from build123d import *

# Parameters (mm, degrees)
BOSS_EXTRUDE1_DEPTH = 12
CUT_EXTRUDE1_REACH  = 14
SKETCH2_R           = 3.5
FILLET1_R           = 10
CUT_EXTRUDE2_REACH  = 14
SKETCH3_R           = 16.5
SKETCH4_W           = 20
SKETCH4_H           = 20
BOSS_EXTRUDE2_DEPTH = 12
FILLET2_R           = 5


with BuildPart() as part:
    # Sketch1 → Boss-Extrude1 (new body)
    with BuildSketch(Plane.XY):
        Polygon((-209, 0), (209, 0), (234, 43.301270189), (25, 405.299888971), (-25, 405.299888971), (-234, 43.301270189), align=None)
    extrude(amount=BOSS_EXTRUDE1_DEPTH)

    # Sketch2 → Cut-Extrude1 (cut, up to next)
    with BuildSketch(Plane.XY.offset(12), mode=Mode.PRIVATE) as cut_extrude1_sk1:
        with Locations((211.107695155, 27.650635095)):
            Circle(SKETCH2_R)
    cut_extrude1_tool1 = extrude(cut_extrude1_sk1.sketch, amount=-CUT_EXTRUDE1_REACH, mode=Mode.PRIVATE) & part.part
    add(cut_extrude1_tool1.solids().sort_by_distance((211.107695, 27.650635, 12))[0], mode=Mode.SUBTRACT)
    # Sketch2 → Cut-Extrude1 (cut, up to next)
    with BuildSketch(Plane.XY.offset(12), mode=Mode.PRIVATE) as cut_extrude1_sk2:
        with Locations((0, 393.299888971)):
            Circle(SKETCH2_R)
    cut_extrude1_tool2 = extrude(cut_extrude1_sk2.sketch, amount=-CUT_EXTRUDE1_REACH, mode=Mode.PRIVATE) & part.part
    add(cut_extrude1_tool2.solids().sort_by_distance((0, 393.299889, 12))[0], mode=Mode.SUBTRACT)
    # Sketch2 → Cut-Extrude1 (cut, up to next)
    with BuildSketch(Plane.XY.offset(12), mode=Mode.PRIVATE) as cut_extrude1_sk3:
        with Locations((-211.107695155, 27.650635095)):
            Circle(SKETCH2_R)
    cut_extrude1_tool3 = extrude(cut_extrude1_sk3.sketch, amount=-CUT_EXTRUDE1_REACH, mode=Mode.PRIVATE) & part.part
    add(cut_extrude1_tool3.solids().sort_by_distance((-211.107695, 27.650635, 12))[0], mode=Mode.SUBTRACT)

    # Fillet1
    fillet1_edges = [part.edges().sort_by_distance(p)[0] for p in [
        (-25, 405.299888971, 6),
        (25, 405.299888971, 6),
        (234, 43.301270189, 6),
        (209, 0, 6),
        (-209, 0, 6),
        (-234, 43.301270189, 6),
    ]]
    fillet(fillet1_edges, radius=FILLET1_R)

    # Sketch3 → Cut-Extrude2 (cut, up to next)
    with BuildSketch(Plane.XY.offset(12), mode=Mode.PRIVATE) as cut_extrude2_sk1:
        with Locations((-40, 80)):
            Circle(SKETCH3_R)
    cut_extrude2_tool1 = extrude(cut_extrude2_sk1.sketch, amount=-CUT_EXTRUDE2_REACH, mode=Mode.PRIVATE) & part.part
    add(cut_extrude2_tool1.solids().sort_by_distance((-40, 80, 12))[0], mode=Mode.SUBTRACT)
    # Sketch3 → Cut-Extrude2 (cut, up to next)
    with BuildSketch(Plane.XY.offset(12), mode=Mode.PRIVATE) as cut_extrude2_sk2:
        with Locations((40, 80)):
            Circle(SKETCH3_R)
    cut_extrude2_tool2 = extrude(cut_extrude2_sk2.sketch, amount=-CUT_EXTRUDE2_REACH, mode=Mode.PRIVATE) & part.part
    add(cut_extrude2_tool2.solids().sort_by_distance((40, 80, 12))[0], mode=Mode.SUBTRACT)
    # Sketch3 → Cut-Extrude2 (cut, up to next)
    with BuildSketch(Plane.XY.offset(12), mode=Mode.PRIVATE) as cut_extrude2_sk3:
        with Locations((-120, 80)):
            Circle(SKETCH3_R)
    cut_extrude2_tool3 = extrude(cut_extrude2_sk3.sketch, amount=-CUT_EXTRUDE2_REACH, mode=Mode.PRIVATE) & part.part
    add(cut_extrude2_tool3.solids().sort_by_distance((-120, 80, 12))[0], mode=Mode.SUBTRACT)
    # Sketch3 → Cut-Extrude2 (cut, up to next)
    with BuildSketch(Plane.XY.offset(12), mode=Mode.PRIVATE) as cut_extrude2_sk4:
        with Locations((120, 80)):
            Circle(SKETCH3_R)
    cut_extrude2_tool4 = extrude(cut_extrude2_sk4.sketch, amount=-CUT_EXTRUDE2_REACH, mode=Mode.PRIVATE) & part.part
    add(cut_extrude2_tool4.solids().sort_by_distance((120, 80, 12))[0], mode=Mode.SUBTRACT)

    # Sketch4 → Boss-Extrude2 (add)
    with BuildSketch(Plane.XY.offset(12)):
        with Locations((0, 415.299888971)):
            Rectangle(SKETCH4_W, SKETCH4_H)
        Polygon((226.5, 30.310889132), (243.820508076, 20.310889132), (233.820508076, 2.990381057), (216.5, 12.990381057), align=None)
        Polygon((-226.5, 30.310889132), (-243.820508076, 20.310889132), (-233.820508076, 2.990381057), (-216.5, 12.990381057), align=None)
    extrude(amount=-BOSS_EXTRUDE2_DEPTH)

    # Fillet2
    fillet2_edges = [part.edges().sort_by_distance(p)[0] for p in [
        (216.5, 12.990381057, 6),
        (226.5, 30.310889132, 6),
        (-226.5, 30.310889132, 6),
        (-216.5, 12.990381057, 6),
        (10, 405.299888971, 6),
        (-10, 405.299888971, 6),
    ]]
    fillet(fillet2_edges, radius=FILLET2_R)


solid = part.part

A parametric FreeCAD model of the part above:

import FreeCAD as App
import Part
import Sketcher
from FreeCAD import Vector
Q = App.Units.Quantity


def edges_at(feature, points):
    """Names of the edges that pass closest to the given points."""
    edges = feature.Shape.Edges
    near = lambda p: min(range(len(edges)), key=lambda i: edges[i].distToShape(Part.Vertex(*p))[0])
    return sorted({f"Edge{near(p) + 1}" for p in points})

doc = App.newDocument("Part")
body = doc.addObject("PartDesign::Body", "Body")

sketch1 = body.newObject("Sketcher::SketchObject", "Sketch")
sketch1.AttachmentSupport = (doc.getObject("XY_Plane"), [""])
sketch1.MapMode = "FlatFace"
sketch1.addGeometry([
    Part.LineSegment(Vector(-209, 0, 0), Vector(209, 0, 0)),
    Part.LineSegment(Vector(209, 0, 0), Vector(234, 43, 0)),
    Part.LineSegment(Vector(234, 43, 0), Vector(25, 405, 0)),
    Part.LineSegment(Vector(25, 405, 0), Vector(-25, 405, 0)),
    Part.LineSegment(Vector(-25, 405, 0), Vector(-234, 43, 0)),
    Part.LineSegment(Vector(-234, 43, 0), Vector(-209, 0, 0)),
], False)
sketch1.addConstraint([
    Sketcher.Constraint("Coincident", 0, 2, 1, 1),
    Sketcher.Constraint("Coincident", 1, 2, 2, 1),
    Sketcher.Constraint("Coincident", 2, 2, 3, 1),
    Sketcher.Constraint("Coincident", 3, 2, 4, 1),
    Sketcher.Constraint("Coincident", 4, 2, 5, 1),
    Sketcher.Constraint("Coincident", 5, 2, 0, 1),
    Sketcher.Constraint("Horizontal", 0),
    Sketcher.Constraint("Horizontal", 3),
    Sketcher.Constraint("Symmetric", 0, 2, 5, 2, -1, 1),
    Sketcher.Constraint("Symmetric", 1, 2, 4, 2, -2),
    Sketcher.Constraint("Parallel", 1, 4),
    Sketcher.Constraint("Parallel", 2, 5),
    Sketcher.Constraint("DistanceX", 0, 1, 0, 2, Q("418 mm")),
    Sketcher.Constraint("DistanceX", 3, 2, 3, 1, Q("50 mm")),
    Sketcher.Constraint("Angle", 1, Q("60 deg")),
    Sketcher.Constraint("Distance", 1, Q("50 mm")),
])
pad1 = body.newObject("PartDesign::Pad", "Pad")
pad1.Profile = sketch1
pad1.Length = 12

sketch2 = body.newObject("Sketcher::SketchObject", "Sketch001")
sketch2.AttachmentSupport = (doc.getObject("XY_Plane"), [""])
sketch2.MapMode = "FlatFace"
sketch2.AttachmentOffset = App.Placement(Vector(0, 0, 12), App.Rotation())
sketch2.addGeometry(Part.Circle(Vector(211.1, 27.7, 0), Vector(0, 0, 1), 3.5), False)
sketch2.addConstraint([
    Sketcher.Constraint("Diameter", 0, Q("7 mm")),
    Sketcher.Constraint("DistanceX", -1, 1, 0, 3, Q("211.107695 mm")),
    Sketcher.Constraint("DistanceY", -1, 1, 0, 3, Q("27.650635 mm")),
])
pocket1 = body.newObject("PartDesign::Pocket", "Pocket")
pocket1.Profile = sketch2
pocket1.Type = "UpToFirst"

sketch3 = body.newObject("Sketcher::SketchObject", "Sketch002")
sketch3.AttachmentSupport = (doc.getObject("XY_Plane"), [""])
sketch3.MapMode = "FlatFace"
sketch3.AttachmentOffset = App.Placement(Vector(0, 0, 12), App.Rotation())
sketch3.addGeometry(Part.Circle(Vector(0, 393.299889, 0), Vector(0, 0, 1), 3.5), False)
sketch3.addConstraint([
    Sketcher.Constraint("PointOnObject", 0, 3, -2),
    Sketcher.Constraint("Diameter", 0, Q("7 mm")),
    Sketcher.Constraint("DistanceY", -1, 1, 0, 3, Q("393.299889 mm")),
])
pocket2 = body.newObject("PartDesign::Pocket", "Pocket001")
pocket2.Profile = sketch3
pocket2.Type = "UpToFirst"

sketch4 = body.newObject("Sketcher::SketchObject", "Sketch003")
sketch4.AttachmentSupport = (doc.getObject("XY_Plane"), [""])
sketch4.MapMode = "FlatFace"
sketch4.AttachmentOffset = App.Placement(Vector(0, 0, 12), App.Rotation())
sketch4.addGeometry(Part.Circle(Vector(-211.1, 27.7, 0), Vector(0, 0, 1), 3.5), False)
sketch4.addConstraint([
    Sketcher.Constraint("Diameter", 0, Q("7 mm")),
    Sketcher.Constraint("DistanceX", 0, 3, -1, 1, Q("211.107695 mm")),
    Sketcher.Constraint("DistanceY", -1, 1, 0, 3, Q("27.650635 mm")),
])
pocket3 = body.newObject("PartDesign::Pocket", "Pocket002")
pocket3.Profile = sketch4
pocket3.Type = "UpToFirst"
doc.recompute()

fillet = body.newObject("PartDesign::Fillet", "Fillet")
fillet.Base = (pocket3, edges_at(pocket3, [
    (-25, 405.3, 6),
    (25, 405.3, 6),
    (234, 43.301, 6),
    (209, 0, 6),
    (-209, 0, 6),
    (-234, 43.301, 6),
]))
fillet.Radius = 10

sketch5 = body.newObject("Sketcher::SketchObject", "Sketch004")
sketch5.AttachmentSupport = (doc.getObject("XY_Plane"), [""])
sketch5.MapMode = "FlatFace"
sketch5.AttachmentOffset = App.Placement(Vector(0, 0, 12), App.Rotation())
sketch5.addGeometry(Part.Circle(Vector(-40, 80, 0), Vector(0, 0, 1), 16), False)
sketch5.addConstraint([
    Sketcher.Constraint("Diameter", 0, Q("33 mm")),
    Sketcher.Constraint("DistanceX", 0, 3, -1, 1, Q("40 mm")),
    Sketcher.Constraint("DistanceY", -1, 1, 0, 3, Q("80 mm")),
])
pocket4 = body.newObject("PartDesign::Pocket", "Pocket003")
pocket4.Profile = sketch5
pocket4.Type = "UpToFirst"

sketch6 = body.newObject("Sketcher::SketchObject", "Sketch005")
sketch6.AttachmentSupport = (doc.getObject("XY_Plane"), [""])
sketch6.MapMode = "FlatFace"
sketch6.AttachmentOffset = App.Placement(Vector(0, 0, 12), App.Rotation())
sketch6.addGeometry(Part.Circle(Vector(40, 80, 0), Vector(0, 0, 1), 16), False)
sketch6.addConstraint([
    Sketcher.Constraint("Diameter", 0, Q("33 mm")),
    Sketcher.Constraint("DistanceX", -1, 1, 0, 3, Q("40 mm")),
    Sketcher.Constraint("DistanceY", -1, 1, 0, 3, Q("80 mm")),
])
pocket5 = body.newObject("PartDesign::Pocket", "Pocket004")
pocket5.Profile = sketch6
pocket5.Type = "UpToFirst"

sketch7 = body.newObject("Sketcher::SketchObject", "Sketch006")
sketch7.AttachmentSupport = (doc.getObject("XY_Plane"), [""])
sketch7.MapMode = "FlatFace"
sketch7.AttachmentOffset = App.Placement(Vector(0, 0, 12), App.Rotation())
sketch7.addGeometry(Part.Circle(Vector(-120, 80, 0), Vector(0, 0, 1), 16), False)
sketch7.addConstraint([
    Sketcher.Constraint("Diameter", 0, Q("33 mm")),
    Sketcher.Constraint("DistanceX", 0, 3, -1, 1, Q("120 mm")),
    Sketcher.Constraint("DistanceY", -1, 1, 0, 3, Q("80 mm")),
])
pocket6 = body.newObject("PartDesign::Pocket", "Pocket005")
pocket6.Profile = sketch7
pocket6.Type = "UpToFirst"

sketch8 = body.newObject("Sketcher::SketchObject", "Sketch007")
sketch8.AttachmentSupport = (doc.getObject("XY_Plane"), [""])
sketch8.MapMode = "FlatFace"
sketch8.AttachmentOffset = App.Placement(Vector(0, 0, 12), App.Rotation())
sketch8.addGeometry(Part.Circle(Vector(120, 80, 0), Vector(0, 0, 1), 16), False)
sketch8.addConstraint([
    Sketcher.Constraint("Diameter", 0, Q("33 mm")),
    Sketcher.Constraint("DistanceX", -1, 1, 0, 3, Q("120 mm")),
    Sketcher.Constraint("DistanceY", -1, 1, 0, 3, Q("80 mm")),
])
pocket7 = body.newObject("PartDesign::Pocket", "Pocket006")
pocket7.Profile = sketch8
pocket7.Type = "UpToFirst"

sketch9 = body.newObject("Sketcher::SketchObject", "Sketch008")
sketch9.AttachmentSupport = (doc.getObject("XY_Plane"), [""])
sketch9.MapMode = "FlatFace"
sketch9.AttachmentOffset = App.Placement(Vector(0, 0, 12), App.Rotation())
sketch9.addGeometry([
    Part.LineSegment(Vector(-10, 425, 0), Vector(-10, 405, 0)),
    Part.LineSegment(Vector(-10, 405, 0), Vector(10, 405, 0)),
    Part.LineSegment(Vector(10, 405, 0), Vector(10, 425, 0)),
    Part.LineSegment(Vector(10, 425, 0), Vector(-10, 425, 0)),
    Part.LineSegment(Vector(244, 20, 0), Vector(226, 30, 0)),
    Part.LineSegment(Vector(226, 30, 0), Vector(216, 13, 0)),
    Part.LineSegment(Vector(216, 13, 0), Vector(234, 3, 0)),
    Part.LineSegment(Vector(234, 3, 0), Vector(244, 20, 0)),
    Part.LineSegment(Vector(-226, 30, 0), Vector(-244, 20, 0)),
    Part.LineSegment(Vector(-244, 20, 0), Vector(-234, 3, 0)),
    Part.LineSegment(Vector(-234, 3, 0), Vector(-216, 13, 0)),
    Part.LineSegment(Vector(-216, 13, 0), Vector(-226, 30, 0)),
], False)
sketch9.addConstraint([
    Sketcher.Constraint("Coincident", 0, 2, 1, 1),
    Sketcher.Constraint("Coincident", 1, 2, 2, 1),
    Sketcher.Constraint("Coincident", 2, 2, 3, 1),
    Sketcher.Constraint("Coincident", 3, 2, 0, 1),
    Sketcher.Constraint("Coincident", 4, 2, 5, 1),
    Sketcher.Constraint("Coincident", 5, 2, 6, 1),
    Sketcher.Constraint("Coincident", 6, 2, 7, 1),
    Sketcher.Constraint("Coincident", 7, 2, 4, 1),
    Sketcher.Constraint("Coincident", 8, 2, 9, 1),
    Sketcher.Constraint("Coincident", 9, 2, 10, 1),
    Sketcher.Constraint("Coincident", 10, 2, 11, 1),
    Sketcher.Constraint("Coincident", 11, 2, 8, 1),
    Sketcher.Constraint("Vertical", 0),
    Sketcher.Constraint("Horizontal", 1),
    Sketcher.Constraint("Vertical", 2),
    Sketcher.Constraint("Horizontal", 3),
    Sketcher.Constraint("Symmetric", 7, 2, 8, 2, -2),
    Sketcher.Constraint("Symmetric", 6, 2, 9, 2, -2),
    Sketcher.Constraint("Symmetric", 5, 2, 10, 2, -2),
    Sketcher.Constraint("Symmetric", 4, 2, 11, 2, -2),
    Sketcher.Constraint("Perpendicular", 4, 5),
    Sketcher.Constraint("Perpendicular", 5, 6),
    Sketcher.Constraint("Perpendicular", 6, 7),
    Sketcher.Constraint("Equal", 3, 0),
    Sketcher.Constraint("Equal", 4, 5),
    Sketcher.Constraint("DistanceX", 1, 1, 1, 2, Q("20 mm")),
    Sketcher.Constraint("Angle", 4, Q("150 deg")),
    Sketcher.Constraint("Distance", 4, Q("20 mm")),
    Sketcher.Constraint("DistanceX", 0, 2, -1, 1, Q("10 mm")),
    Sketcher.Constraint("DistanceX", 10, 2, 5, 2, Q("433 mm")),
    Sketcher.Constraint("DistanceY", 4, 2, 1, 2, Q("374.989 mm")),
    Sketcher.Constraint("DistanceY", -1, 1, 0, 2, Q("405.299889 mm")),
])
pad2 = body.newObject("PartDesign::Pad", "Pad001")
pad2.Profile = sketch9
pad2.Length = 12
pad2.Reversed = True
doc.recompute()

fillet2 = body.newObject("PartDesign::Fillet", "Fillet001")
fillet2.Base = (pad2, edges_at(pad2, [
    (216.5, 12.99, 6),
    (226.5, 30.311, 6),
    (-226.5, 30.311, 6),
    (-216.5, 12.99, 6),
    (10, 405.3, 6),
    (-10, 405.3, 6),
]))
fillet2.Radius = 5

doc.recompute()
